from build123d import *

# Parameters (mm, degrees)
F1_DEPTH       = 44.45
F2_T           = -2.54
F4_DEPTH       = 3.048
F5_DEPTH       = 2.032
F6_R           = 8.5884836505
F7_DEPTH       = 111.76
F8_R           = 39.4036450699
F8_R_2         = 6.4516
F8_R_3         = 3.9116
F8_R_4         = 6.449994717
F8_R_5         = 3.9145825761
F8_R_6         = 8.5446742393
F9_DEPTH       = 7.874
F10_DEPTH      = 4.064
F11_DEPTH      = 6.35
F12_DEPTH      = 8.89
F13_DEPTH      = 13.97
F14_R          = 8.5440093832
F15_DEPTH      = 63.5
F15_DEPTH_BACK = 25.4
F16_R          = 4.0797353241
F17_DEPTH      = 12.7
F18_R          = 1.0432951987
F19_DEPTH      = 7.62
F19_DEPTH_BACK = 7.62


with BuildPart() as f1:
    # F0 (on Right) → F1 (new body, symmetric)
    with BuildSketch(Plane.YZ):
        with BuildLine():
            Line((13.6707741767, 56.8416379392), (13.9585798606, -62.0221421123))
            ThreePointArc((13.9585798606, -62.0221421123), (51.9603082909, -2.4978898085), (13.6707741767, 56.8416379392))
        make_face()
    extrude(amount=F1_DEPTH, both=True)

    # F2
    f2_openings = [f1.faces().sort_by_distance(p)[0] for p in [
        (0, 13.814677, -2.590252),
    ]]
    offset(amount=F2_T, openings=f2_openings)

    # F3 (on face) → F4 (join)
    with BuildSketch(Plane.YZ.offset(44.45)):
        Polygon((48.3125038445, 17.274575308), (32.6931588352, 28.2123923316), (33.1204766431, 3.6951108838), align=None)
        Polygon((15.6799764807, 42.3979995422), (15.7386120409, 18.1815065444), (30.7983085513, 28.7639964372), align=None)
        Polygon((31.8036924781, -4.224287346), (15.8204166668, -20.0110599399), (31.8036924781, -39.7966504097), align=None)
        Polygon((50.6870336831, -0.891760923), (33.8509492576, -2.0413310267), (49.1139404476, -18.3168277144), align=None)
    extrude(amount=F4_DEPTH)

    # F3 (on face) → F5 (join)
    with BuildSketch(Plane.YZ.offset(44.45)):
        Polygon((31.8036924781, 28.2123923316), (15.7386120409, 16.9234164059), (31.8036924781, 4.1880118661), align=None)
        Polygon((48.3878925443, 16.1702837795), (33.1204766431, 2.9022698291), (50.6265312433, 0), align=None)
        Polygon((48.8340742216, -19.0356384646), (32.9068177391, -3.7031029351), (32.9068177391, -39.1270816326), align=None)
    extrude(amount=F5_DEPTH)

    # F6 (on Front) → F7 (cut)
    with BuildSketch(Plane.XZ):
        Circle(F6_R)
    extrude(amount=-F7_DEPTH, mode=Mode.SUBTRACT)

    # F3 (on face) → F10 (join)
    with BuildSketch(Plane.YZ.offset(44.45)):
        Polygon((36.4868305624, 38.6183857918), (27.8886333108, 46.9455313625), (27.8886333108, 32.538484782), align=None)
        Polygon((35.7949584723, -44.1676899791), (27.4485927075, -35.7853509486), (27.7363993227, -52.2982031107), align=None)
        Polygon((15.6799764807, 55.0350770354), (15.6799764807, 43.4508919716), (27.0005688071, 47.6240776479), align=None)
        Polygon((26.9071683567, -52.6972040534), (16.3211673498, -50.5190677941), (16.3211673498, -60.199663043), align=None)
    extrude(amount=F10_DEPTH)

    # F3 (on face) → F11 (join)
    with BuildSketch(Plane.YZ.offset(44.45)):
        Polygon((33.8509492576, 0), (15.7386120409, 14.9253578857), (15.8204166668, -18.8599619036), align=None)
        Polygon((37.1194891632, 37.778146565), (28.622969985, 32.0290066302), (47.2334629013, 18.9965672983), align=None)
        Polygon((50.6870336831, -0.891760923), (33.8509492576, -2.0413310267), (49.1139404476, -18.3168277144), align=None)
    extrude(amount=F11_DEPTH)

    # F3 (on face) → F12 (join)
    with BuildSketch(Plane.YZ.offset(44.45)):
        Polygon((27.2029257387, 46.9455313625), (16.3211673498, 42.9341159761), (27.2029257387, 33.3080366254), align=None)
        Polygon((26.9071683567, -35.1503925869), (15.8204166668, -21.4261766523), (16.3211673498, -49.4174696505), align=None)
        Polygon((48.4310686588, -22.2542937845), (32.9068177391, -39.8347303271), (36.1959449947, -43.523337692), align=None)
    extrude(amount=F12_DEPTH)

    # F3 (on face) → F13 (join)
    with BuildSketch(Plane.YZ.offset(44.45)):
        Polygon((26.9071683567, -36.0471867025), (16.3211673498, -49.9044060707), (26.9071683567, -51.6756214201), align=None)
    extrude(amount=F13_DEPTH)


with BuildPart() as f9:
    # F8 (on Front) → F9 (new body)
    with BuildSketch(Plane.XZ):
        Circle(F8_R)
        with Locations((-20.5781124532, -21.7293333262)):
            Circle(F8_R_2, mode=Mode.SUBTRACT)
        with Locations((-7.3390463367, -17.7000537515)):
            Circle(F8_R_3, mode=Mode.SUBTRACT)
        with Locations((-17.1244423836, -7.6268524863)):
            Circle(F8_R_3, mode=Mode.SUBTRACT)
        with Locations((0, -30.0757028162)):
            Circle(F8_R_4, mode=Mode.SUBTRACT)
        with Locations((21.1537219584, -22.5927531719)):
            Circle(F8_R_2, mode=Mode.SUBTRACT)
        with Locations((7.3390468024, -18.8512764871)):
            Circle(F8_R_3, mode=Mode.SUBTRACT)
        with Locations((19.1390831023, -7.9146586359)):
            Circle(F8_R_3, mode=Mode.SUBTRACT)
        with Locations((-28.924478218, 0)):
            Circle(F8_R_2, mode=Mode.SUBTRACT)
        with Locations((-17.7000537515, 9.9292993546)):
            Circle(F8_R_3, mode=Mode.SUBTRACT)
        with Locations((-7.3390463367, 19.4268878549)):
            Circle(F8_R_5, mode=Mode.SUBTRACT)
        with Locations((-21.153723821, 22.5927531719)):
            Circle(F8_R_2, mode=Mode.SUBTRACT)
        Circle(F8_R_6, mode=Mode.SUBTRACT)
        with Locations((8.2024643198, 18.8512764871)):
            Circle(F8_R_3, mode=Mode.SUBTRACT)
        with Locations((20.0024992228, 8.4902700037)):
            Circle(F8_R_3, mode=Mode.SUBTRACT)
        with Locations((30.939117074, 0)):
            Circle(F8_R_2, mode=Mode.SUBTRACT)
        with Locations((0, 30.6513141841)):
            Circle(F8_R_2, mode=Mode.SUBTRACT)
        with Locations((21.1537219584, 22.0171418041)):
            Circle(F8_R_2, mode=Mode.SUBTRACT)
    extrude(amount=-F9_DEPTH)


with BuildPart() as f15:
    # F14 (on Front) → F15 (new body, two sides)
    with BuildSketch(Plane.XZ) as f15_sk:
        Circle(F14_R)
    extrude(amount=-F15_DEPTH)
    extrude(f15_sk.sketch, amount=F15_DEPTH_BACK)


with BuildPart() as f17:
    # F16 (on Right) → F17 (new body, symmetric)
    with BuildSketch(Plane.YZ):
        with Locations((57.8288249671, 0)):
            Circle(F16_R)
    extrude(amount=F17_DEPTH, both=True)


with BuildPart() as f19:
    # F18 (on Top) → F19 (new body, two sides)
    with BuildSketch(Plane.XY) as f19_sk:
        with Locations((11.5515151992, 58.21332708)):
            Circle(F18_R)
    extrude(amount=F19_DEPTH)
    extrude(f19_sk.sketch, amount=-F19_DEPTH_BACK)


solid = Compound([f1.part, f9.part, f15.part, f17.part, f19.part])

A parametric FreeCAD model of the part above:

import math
import FreeCAD as App
import Part
import Sketcher
Q = App.Units.Quantity


def faces_at(feature, points):
    """Names of the faces that lie closest to the given points."""
    faces = feature.Shape.Faces
    near = lambda p: min(range(len(faces)), key=lambda i: faces[i].distToShape(Part.Vertex(*p))[0])
    return sorted({f"Face{near(p) + 1}" for p in points})


def add_polygon(sketch, points):
    """Adds a closed chain of lines whose ends are joined by coincident constraints."""
    first, n = sketch.GeometryCount, len(points)
    for a, b in zip(points, points[1:] + points[:1]):
        sketch.addGeometry(Part.LineSegment(App.Vector(*a, 0), App.Vector(*b, 0)), False)
    for i in range(n):
        sketch.addConstraint(Sketcher.Constraint("Coincident", first + i, 2, first + (i + 1) % n, 1))

doc = App.newDocument("Part")
params = doc.addObject("Spreadsheet::Sheet", "Params")
for row, (alias, value) in enumerate([
    ("pad1_length", "3.5 in"),
    ("thickness_wall", "0.1 in"),
    ("pad2_length", "0.12 in"),
    ("pad3_length", "0.08 in"),
    ("pocket1_length", "4.4 in"),
    ("pad4_length", "0.16 in"),
    ("pad5_length", "0.25 in"),
    ("pad6_length", "0.35 in"),
    ("pad7_length", "0.55 in"),
    ("sketch9_diameter", "0.508 in"),
    ("sketch9_diameter2", "0.308 in"),
    ("pad8_length", "0.31 in"),
    ("pad9_length", "2.5 in"),
    ("pad9_length2", "1 in"),
    ("pad10_length", "1 in"),
    ("pad11_length", "0.3 in"),
    ("pad11_length2", "0.3 in"),
], start=1):
    params.set(f"A{row}", alias)
    params.set(f"B{row}", "=" + value)
    params.setAlias(f"B{row}", alias)

body = doc.addObject("PartDesign::Body", "Body")

sketch1 = body.newObject("Sketcher::SketchObject", "Sketch")
sketch1.AttachmentSupport = (doc.getObject("YZ_Plane"), [""])
sketch1.MapMode = "FlatFace"
sketch1.addGeometry([
    Part.LineSegment(App.Vector(13.670774, 56.841638, 0), App.Vector(13.95858, -62.022142, 0)),
    Part.ArcOfCircle(Part.Circle(App.Vector(-13.410726, -2.656173, 0), App.Vector(0, 0, 1), 65.371226), math.radians(-65.24903), math.radians(65.52649)),
], False)
sketch1.addConstraint([
    Sketcher.Constraint("Coincident", 0, 1, 1, 2),
    Sketcher.Constraint("Coincident", 1, 1, 0, 2),
    Sketcher.Constraint("Radius", 1, Q("65.371226 mm")),
    Sketcher.Constraint("DistanceX", 1, 3, 0, 1, Q("27.0815 mm")),
    Sketcher.Constraint("Distance", 0, Q("118.864128 mm")),
    Sketcher.Constraint("DistanceX", -1, 1, 1, 1, Q("13.95858 mm")),
    Sketcher.Constraint("DistanceY", 1, 3, -1, 1, Q("2.656173 mm")),
])
pad1 = body.newObject("PartDesign::Pad", "Pad")
pad1.Profile = sketch1
pad1.setExpression("Length", "Params.pad1_length")
pad1.Midplane = True
doc.recompute()

thickness = body.newObject("PartDesign::Thickness", "Thickness")
thickness.Base = (pad1, faces_at(pad1, [(0, 13.815, -2.59)]))
thickness.setExpression("Value", "Params.thickness_wall")
thickness.Reversed = True
thickness.Join = "Arc"

sketch2 = body.newObject("Sketcher::SketchObject", "Sketch001")
sketch2.AttachmentSupport = (doc.getObject("YZ_Plane"), [""])
sketch2.MapMode = "FlatFace"
sketch2.AttachmentOffset = App.Placement(App.Vector(0, 0, 1.75 * 25.4), App.Rotation())
add_polygon(sketch2, [(48.312504, 17.274575), (32.693159, 28.212392), (33.120477, 3.695111)])
add_polygon(sketch2, [(15.679976, 42.398), (15.738612, 18.181507), (30.798309, 28.763996)])
add_polygon(sketch2, [(31.803692, -4.224287), (15.820417, -20.01106), (31.803692, -39.79665)])
add_polygon(sketch2, [(50.687034, -0.891761), (33.850949, -2.041331), (49.11394, -18.316828)])
sketch2.addConstraint([
    Sketcher.Constraint("Vertical", 8),
    Sketcher.Constraint("DistanceY", -1, 1, 5, 2, Q("42.398 mm")),
    Sketcher.Constraint("DistanceX", 5, 2, 1, 2, Q("17.4405 mm")),
    Sketcher.Constraint("DistanceY", 8, 2, 1, 2, Q("7.919398 mm")),
    Sketcher.Constraint("Distance", 7, Q("25.434911 mm")),
    Sketcher.Constraint("Distance", 10, Q("22.312568 mm")),
    Sketcher.Constraint("Distance", 11, Q("17.49593 mm")),
    Sketcher.Constraint("DistanceY", 8, 1, 8, 2, Q("35.572363 mm")),
    Sketcher.Constraint("DistanceX", -1, 1, 0, 2, Q("32.693159 mm")),
    Sketcher.Constraint("DistanceY", -1, 1, 1, 2, Q("3.695111 mm")),
    Sketcher.Constraint("DistanceX", -1, 1, 4, 2, Q("30.798309 mm")),
    Sketcher.Constraint("DistanceY", 6, 2, -1, 1, Q("20.01106 mm")),
    Sketcher.Constraint("DistanceX", -1, 1, 9, 2, Q("33.850949 mm")),
    Sketcher.Constraint("DistanceY", 9, 2, -1, 1, Q("2.041331 mm")),
    Sketcher.Constraint("DistanceX", -1, 1, 10, 2, Q("49.11394 mm")),
    Sketcher.Constraint("DistanceY", 11, 2, -1, 1, Q("0.891761 mm")),
    Sketcher.Constraint("DistanceY", 1, 2, 0, 2, Q("24.517281 mm")),
    Sketcher.Constraint("DistanceX", 3, 2, 2, 2, Q("32.573892 mm")),
    Sketcher.Constraint("DistanceY", 2, 2, 3, 2, Q("0.906931 mm")),
    Sketcher.Constraint("DistanceY", 3, 2, 4, 2, Q("10.58249 mm")),
    Sketcher.Constraint("DistanceX", 4, 2, 1, 2, Q("2.322168 mm")),
    Sketcher.Constraint("DistanceX", 6, 2, 1, 2, Q("17.30006 mm")),
    Sketcher.Constraint("DistanceX", 7, 2, 2, 2, Q("16.508811 mm")),
    Sketcher.Constraint("Distance", 0, Q("19.068293 mm")),
])
pad2 = body.newObject("PartDesign::Pad", "Pad001")
pad2.Profile = sketch2
pad2.setExpression("Length", "Params.pad2_length")

sketch3 = body.newObject("Sketcher::SketchObject", "Sketch002")
sketch3.AttachmentSupport = (doc.getObject("YZ_Plane"), [""])
sketch3.MapMode = "FlatFace"
sketch3.AttachmentOffset = App.Placement(App.Vector(0, 0, 1.75 * 25.4), App.Rotation())
add_polygon(sketch3, [(31.803692, 28.212392), (15.738612, 16.923416), (31.803692, 4.188012)])
add_polygon(sketch3, [(48.387893, 16.170284), (33.120477, 2.90227), (50.626531, 0)])
add_polygon(sketch3, [(48.834074, -19.035638), (32.906818, -3.703103), (32.906818, -39.127082)])
sketch3.addConstraint([
    Sketcher.Constraint("Vertical", 2),
    Sketcher.Constraint("Vertical", 7),
    Sketcher.Constraint("PointOnObject", 4, 2, -1),
    Sketcher.Constraint("Perpendicular", 1, 8),
    Sketcher.Constraint("DistanceY", 2, 1, 2, 2, Q("24.02438 mm")),
    Sketcher.Constraint("DistanceY", 7, 2, 7, 1, Q("35.423979 mm")),
    Sketcher.Constraint("DistanceX", 1, 2, 5, 2, Q("16.5842 mm")),
    Sketcher.Constraint("Distance", 0, Q("19.634862 mm")),
    Sketcher.Constraint("Distance", 5, Q("16.324509 mm")),
    Sketcher.Constraint("Distance", 6, Q("22.108011 mm")),
    Sketcher.Constraint("DistanceY", -1, 1, 1, 2, Q("4.188012 mm")),
    Sketcher.Constraint("DistanceY", -1, 1, 3, 2, Q("2.90227 mm")),
    Sketcher.Constraint("DistanceX", -1, 1, 4, 2, Q("50.626531 mm")),
    Sketcher.Constraint("DistanceY", 7, 2, -1, 1, Q("39.127082 mm")),
    Sketcher.Constraint("DistanceY", 8, 2, -1, 1, Q("19.035638 mm")),
    Sketcher.Constraint("DistanceX", 1, 2, 4, 2, Q("18.822839 mm")),
    Sketcher.Constraint("DistanceX", 6, 2, 3, 2, Q("0.213659 mm")),
    Sketcher.Constraint("DistanceX", 1, 2, 8, 2, Q("17.030382 mm")),
])
pad3 = body.newObject("PartDesign::Pad", "Pad002")
pad3.Profile = sketch3
pad3.setExpression("Length", "Params.pad3_length")

sketch4 = body.newObject("Sketcher::SketchObject", "Sketch003")
sketch4.AttachmentSupport = (doc.getObject("XZ_Plane"), [""])
sketch4.MapMode = "FlatFace"
sketch4.addGeometry(Part.Circle(App.Vector(0, 0, 0), App.Vector(0, 0, 1), 8.588484), False)
sketch4.addConstraint([
    Sketcher.Constraint("Coincident", 0, 3, -1, 1),
    Sketcher.Constraint("Diameter", 0, Q("17.176967 mm")),
])
pocket1 = body.newObject("PartDesign::Pocket", "Pocket")
pocket1.Profile = sketch4
pocket1.setExpression("Length", "Params.pocket1_length")

sketch5 = body.newObject("Sketcher::SketchObject", "Sketch004")
sketch5.AttachmentSupport = (doc.getObject("YZ_Plane"), [""])
sketch5.MapMode = "FlatFace"
sketch5.AttachmentOffset = App.Placement(App.Vector(0, 0, 1.75 * 25.4), App.Rotation())
add_polygon(sketch5, [(36.486831, 38.618386), (27.888633, 46.945531), (27.888633, 32.538485)])
add_polygon(sketch5, [(35.794958, -44.16769), (27.448593, -35.785351), (27.736399, -52.298203)])
add_polygon(sketch5, [(15.679976, 55.035077), (15.679976, 43.450892), (27.000569, 47.624078)])
add_polygon(sketch5, [(26.907168, -52.697204), (16.321167, -50.519068), (16.321167, -60.199663)])
sketch5.addConstraint([
    Sketcher.Constraint("Vertical", 1),
    Sketcher.Constraint("Vertical", 6),
    Sketcher.Constraint("Vertical", 10),
    Sketcher.Constraint("DistanceX", -1, 1, 4, 2, Q("27.736399 mm")),
    Sketcher.Constraint("DistanceY", 1, 2, 2, 2, Q("6.079901 mm")),
    Sketcher.Constraint("DistanceY", 7, 2, 8, 2, Q("7.410999 mm")),
    Sketcher.Constraint("DistanceY", 11, 2, 4, 2, Q("0.399001 mm")),
    Sketcher.Constraint("DistanceX", 9, 2, 11, 2, Q("10.586001 mm")),
    Sketcher.Constraint("Distance", 0, Q("11.969559 mm")),
    Sketcher.Constraint("Distance", 2, Q("10.530631 mm")),
    Sketcher.Constraint("Distance", 4, Q("16.51536 mm")),
    Sketcher.Constraint("Distance", 8, Q("13.530659 mm")),
    Sketcher.Constraint("Distance", 9, Q("10.807761 mm")),
    Sketcher.Constraint("DistanceY", 6, 2, 6, 1, Q("11.584185 mm")),
    Sketcher.Constraint("DistanceY", 10, 2, 10, 1, Q("9.680595 mm")),
    Sketcher.Constraint("DistanceY", -1, 1, 0, 2, Q("46.945531 mm")),
    Sketcher.Constraint("DistanceX", -1, 1, 2, 2, Q("36.486831 mm")),
    Sketcher.Constraint("DistanceY", 3, 2, -1, 1, Q("35.785351 mm")),
    Sketcher.Constraint("DistanceX", -1, 1, 5, 2, Q("35.794958 mm")),
    Sketcher.Constraint("DistanceY", 5, 2, -1, 1, Q("44.16769 mm")),
    Sketcher.Constraint("DistanceY", -1, 1, 6, 2, Q("43.450892 mm")),
    Sketcher.Constraint("DistanceX", -1, 1, 7, 2, Q("27.000569 mm")),
    Sketcher.Constraint("DistanceX", -1, 1, 11, 2, Q("26.907168 mm")),
    Sketcher.Constraint("DistanceX", 3, 2, 1, 2, Q("0.440041 mm")),
])
pad4 = body.newObject("PartDesign::Pad", "Pad003")
pad4.Profile = sketch5
pad4.setExpression("Length", "Params.pad4_length")

sketch6 = body.newObject("Sketcher::SketchObject", "Sketch005")
sketch6.AttachmentSupport = (doc.getObject("YZ_Plane"), [""])
sketch6.MapMode = "FlatFace"
sketch6.AttachmentOffset = App.Placement(App.Vector(0, 0, 1.75 * 25.4), App.Rotation())
add_polygon(sketch6, [(33.850949, 0), (15.738612, 14.925358), (15.820417, -18.859962)])
add_polygon(sketch6, [(37.119489, 37.778147), (28.62297, 32.029007), (47.233463, 18.996567)])
add_polygon(sketch6, [(50.687034, -0.891761), (33.850949, -2.041331), (49.11394, -18.316828)])
sketch6.addConstraint([
    Sketcher.Constraint("PointOnObject", 2, 2, -1),
    Sketcher.Constraint("Vertical", 2, 2, 6, 2),
    Sketcher.Constraint("Angle", 0, Q("140.509985 deg")),
    Sketcher.Constraint("DistanceY", 6, 2, 4, 2, Q("21.037898 mm")),
    Sketcher.Constraint("Distance", 0, Q("23.46962 mm")),
    Sketcher.Constraint("Distance", 1, Q("33.785419 mm")),
    Sketcher.Constraint("Distance", 2, Q("26.092111 mm")),
    Sketcher.Constraint("Distance", 5, Q("21.331671 mm")),
    Sketcher.Constraint("Distance", 7, Q("22.312568 mm")),
    Sketcher.Constraint("Distance", 8, Q("17.49593 mm")),
    Sketcher.Constraint("DistanceX", -1, 1, 2, 2, Q("33.850949 mm")),
    Sketcher.Constraint("DistanceX", -1, 1, 3, 2, Q("28.62297 mm")),
    Sketcher.Constraint("DistanceX", -1, 1, 5, 2, Q("37.119489 mm")),
    Sketcher.Constraint("DistanceY", 6, 2, -1, 1, Q("2.041331 mm")),
    Sketcher.Constraint("DistanceX", -1, 1, 7, 2, Q("49.11394 mm")),
    Sketcher.Constraint("DistanceY", 8, 2, -1, 1, Q("0.891761 mm")),
    Sketcher.Constraint("DistanceY", 0, 2, 3, 2, Q("17.103649 mm")),
    Sketcher.Constraint("DistanceX", 0, 2, 4, 2, Q("31.494851 mm")),
])
pad5 = body.newObject("PartDesign::Pad", "Pad004")
pad5.Profile = sketch6
pad5.setExpression("Length", "Params.pad5_length")

sketch7 = body.newObject("Sketcher::SketchObject", "Sketch006")
sketch7.AttachmentSupport = (doc.getObject("YZ_Plane"), [""])
sketch7.MapMode = "FlatFace"
sketch7.AttachmentOffset = App.Placement(App.Vector(0, 0, 1.75 * 25.4), App.Rotation())
add_polygon(sketch7, [(27.202926, 46.945531), (16.321167, 42.934116), (27.202926, 33.308037)])
add_polygon(sketch7, [(26.907168, -35.150393), (15.820417, -21.426177), (16.321167, -49.41747)])
add_polygon(sketch7, [(48.431069, -22.254294), (32.906818, -39.83473), (36.195945, -43.523338)])
sketch7.addConstraint([
    Sketcher.Constraint("Vertical", 2),
    Sketcher.Constraint("Vertical", 0, 2, 4, 2),
    Sketcher.Constraint("DistanceX", 5, 2, 7, 2, Q("0.3656999 in")),
    Sketcher.Constraint("DistanceY", 4, 2, 2, 2, Q("96.363001 mm")),
    Sketcher.Constraint("DistanceX", 4, 2, 5, 2, Q("10.586001 mm")),
    Sketcher.Constraint("DistanceX", 3, 2, 6, 2, Q("17.086401 mm")),
    Sketcher.Constraint("DistanceX", 5, 2, 8, 2, Q("21.5239 mm")),
    Sketcher.Constraint("DistanceY", 5, 2, 8, 2, Q("12.896099 mm")),
    Sketcher.Constraint("Distance", 0, Q("11.597591 mm")),
    Sketcher.Constraint("Distance", 1, Q("14.528388 mm")),
    Sketcher.Constraint("Distance", 3, Q("17.64285 mm")),
    Sketcher.Constraint("Distance", 4, Q("27.995772 mm")),
    Sketcher.Constraint("Distance", 6, Q("23.453659 mm")),
    Sketcher.Constraint("DistanceY", 2, 1, 2, 2, Q("13.637495 mm")),
    Sketcher.Constraint("DistanceY", -1, 1, 2, 2, Q("46.945531 mm")),
    Sketcher.Constraint("DistanceX", -1, 1, 5, 2, Q("26.907168 mm")),
    Sketcher.Constraint("DistanceY", 6, 2, -1, 1, Q("39.83473 mm")),
    Sketcher.Constraint("DistanceY", 4, 2, 7, 2, Q("5.894132 mm")),
])
pad6 = body.newObject("PartDesign::Pad", "Pad005")
pad6.Profile = sketch7
pad6.setExpression("Length", "Params.pad6_length")

sketch8 = body.newObject("Sketcher::SketchObject", "Sketch007")
sketch8.AttachmentSupport = (doc.getObject("YZ_Plane"), [""])
sketch8.MapMode = "FlatFace"
sketch8.AttachmentOffset = App.Placement(App.Vector(0, 0, 1.75 * 25.4), App.Rotation())
add_polygon(sketch8, [(26.907168, -36.047187), (16.321167, -49.904406), (26.907168, -51.675621)])
sketch8.addConstraint([
    Sketcher.Constraint("Vertical", 2),
    Sketcher.Constraint("DistanceX", 0, 2, 1, 2, Q("10.586001 mm")),
    Sketcher.Constraint("Distance", 0, Q("17.43806 mm")),
    Sketcher.Constraint("DistanceY", 2, 1, 2, 2, Q("15.628435 mm")),
    Sketcher.Constraint("DistanceX", -1, 1, 1, 2, Q("26.907168 mm")),
    Sketcher.Constraint("DistanceY", 1, 2, -1, 1, Q("51.675621 mm")),
])
pad7 = body.newObject("PartDesign::Pad", "Pad006")
pad7.Profile = sketch8
pad7.setExpression("Length", "Params.pad7_length")
body2 = doc.addObject("PartDesign::Body", "Body001")

sketch9 = body2.newObject("Sketcher::SketchObject", "Sketch008")
sketch9.AttachmentSupport = (doc.getObject("XZ_Plane001"), [""])
sketch9.MapMode = "FlatFace"
sketch9.addGeometry([
    Part.Circle(App.Vector(0, 0, 0), App.Vector(0, 0, 1), 39.403645),
    Part.Circle(App.Vector(-20.578112, -21.729333, 0), App.Vector(0, 0, 1), 6.4516),
    Part.Circle(App.Vector(0, -30.075703, 0), App.Vector(0, 0, 1), 6.449995),
    Part.Circle(App.Vector(-28.924478, 0, 0), App.Vector(0, 0, 1), 6.4516),
    Part.Circle(App.Vector(-7.339046, -17.700054, 0), App.Vector(0, 0, 1), 3.9116),
    Part.Circle(App.Vector(-17.124442, -7.626852, 0), App.Vector(0, 0, 1), 3.9116),
    Part.Circle(App.Vector(0, 0, 0), App.Vector(0, 0, 1), 8.544674),
    Part.Circle(App.Vector(7.339047, -18.851276, 0), App.Vector(0, 0, 1), 3.9116),
    Part.Circle(App.Vector(21.153722, -22.592753, 0), App.Vector(0, 0, 1), 6.4516),
    Part.Circle(App.Vector(19.139083, -7.914659, 0), App.Vector(0, 0, 1), 3.9116),
    Part.Circle(App.Vector(30.939117, 0, 0), App.Vector(0, 0, 1), 6.4516),
    Part.Circle(App.Vector(-17.700054, 9.929299, 0), App.Vector(0, 0, 1), 3.9116),
    Part.Circle(App.Vector(-21.153724, 22.592753, 0), App.Vector(0, 0, 1), 6.4516),
    Part.Circle(App.Vector(-7.339046, 19.426888, 0), App.Vector(0, 0, 1), 3.914583),
    Part.Circle(App.Vector(0, 30.651314, 0), App.Vector(0, 0, 1), 6.4516),
    Part.Circle(App.Vector(20.002499, 8.49027, 0), App.Vector(0, 0, 1), 3.9116),
    Part.Circle(App.Vector(8.202464, 18.851276, 0), App.Vector(0, 0, 1), 3.9116),
    Part.Circle(App.Vector(21.153722, 22.017142, 0), App.Vector(0, 0, 1), 6.4516),
], False)
sketch9.addConstraint([
    Sketcher.Constraint("Coincident", 0, 3, -1, 1),
    Sketcher.Constraint("Coincident", 6, 3, -1, 1),
    Sketcher.Constraint("Equal", 1, 3),
    Sketcher.Constraint("Equal", 4, 5),
    Sketcher.Constraint("Equal", 5, 7),
    Sketcher.Constraint("Equal", 3, 8),
    Sketcher.Constraint("Equal", 7, 9),
    Sketcher.Constraint("Equal", 8, 10),
    Sketcher.Constraint("Equal", 9, 11),
    Sketcher.Constraint("Equal", 10, 12),
    Sketcher.Constraint("Equal", 12, 14),
    Sketcher.Constraint("Equal", 11, 15),
    Sketcher.Constraint("Equal", 15, 16),
    Sketcher.Constraint("Equal", 14, 17),
    Sketcher.Constraint("Symmetric", 8, 3, 12, 3, -1, 1),
    Sketcher.Constraint("PointOnObject", 2, 3, -2),
    Sketcher.Constraint("PointOnObject", 3, 3, -1),
    Sketcher.Constraint("PointOnObject", 10, 3, -1),
    Sketcher.Constraint("PointOnObject", 14, 3, -2),
    Sketcher.Constraint("Vertical", 4, 3, 13, 3),
    Sketcher.Constraint("Vertical", 8, 3, 17, 3),
    Sketcher.Constraint("Diameter", 1, Q("0.508 in")),
    Sketcher.Constraint("Diameter", 4, Q("0.308 in")),
    Sketcher.Constraint("Diameter", 0, Q("78.80729 mm")),
    Sketcher.Constraint("Diameter", 2, Q("12.899989 mm")),
    Sketcher.Constraint("Diameter", 6, Q("17.089348 mm")),
    Sketcher.Constraint("Diameter", 13, Q("7.829165 mm")),
    Sketcher.Constraint("DistanceX", -1, 1, 15, 3, Q("0.7875 in")),
    Sketcher.Constraint("DistanceY", -1, 1, 11, 3, Q("9.929299 mm")),
    Sketcher.Constraint("DistanceY", 4, 3, 5, 3, Q("10.073201 mm")),
    Sketcher.Constraint("DistanceY", 8, 3, 4, 3, Q("4.892699 mm")),
    Sketcher.Constraint("DistanceX", 3, 3, -1, 1, Q("28.924478 mm")),
    Sketcher.Constraint("DistanceX", -1, 1, 8, 3, Q("21.153722 mm")),
    Sketcher.Constraint("DistanceY", 9, 3, -1, 1, Q("7.914659 mm")),
    Sketcher.Constraint("DistanceY", -1, 1, 15, 3, Q("8.49027 mm")),
    Sketcher.Constraint("DistanceY", -1, 1, 17, 3, Q("22.017142 mm")),
    Sketcher.Constraint("DistanceY", 2, 3, 1, 3, Q("8.346369 mm")),
    Sketcher.Constraint("DistanceY", 1, 3, 4, 3, Q("4.02928 mm")),
    Sketcher.Constraint("DistanceX", 3, 3, 4, 3, Q("21.585432 mm")),
    Sketcher.Constraint("DistanceX", 1, 3, 5, 3, Q("3.45367 mm")),
    Sketcher.Constraint("DistanceX", 5, 3, 7, 3, Q("24.463489 mm")),
    Sketcher.Constraint("DistanceX", 9, 3, 8, 3, Q("2.014639 mm")),
    Sketcher.Constraint("DistanceX", 7, 3, 10, 3, Q("23.60007 mm")),
    Sketcher.Constraint("DistanceX", 11, 3, 5, 3, Q("0.575611 mm")),
    Sketcher.Constraint("DistanceY", 5, 3, 11, 3, Q("17.556152 mm")),
    Sketcher.Constraint("DistanceX", 12, 3, 11, 3, Q("3.45367 mm")),
    Sketcher.Constraint("DistanceY", 11, 3, 13, 3, Q("9.497589 mm")),
    Sketcher.Constraint("DistanceY", 12, 3, 14, 3, Q("8.058561 mm")),
    Sketcher.Constraint("DistanceX", 13, 3, 16, 3, Q("15.541511 mm")),
    Sketcher.Constraint("DistanceY", 16, 3, 13, 3, Q("0.575611 mm")),
    Sketcher.Constraint("DistanceY", 7, 3, -1, 1, Q("18.851276 mm")),
])
sketch9.setExpression("Constraints[21]", "Params.sketch9_diameter")
sketch9.setExpression("Constraints[22]", "Params.sketch9_diameter2")
pad8 = body2.newObject("PartDesign::Pad", "Pad007")
pad8.Profile = sketch9
pad8.setExpression("Length", "Params.pad8_length")
pad8.Reversed = True
body3 = doc.addObject("PartDesign::Body", "Body002")

sketch10 = body3.newObject("Sketcher::SketchObject", "Sketch009")
sketch10.AttachmentSupport = (doc.getObject("XZ_Plane002"), [""])
sketch10.MapMode = "FlatFace"
sketch10.addGeometry(Part.Circle(App.Vector(0, 0, 0), App.Vector(0, 0, 1), 8.544009), False)
sketch10.addConstraint([
    Sketcher.Constraint("Coincident", 0, 3, -1, 1),
    Sketcher.Constraint("Diameter", 0, Q("17.088019 mm")),
])
pad9 = body3.newObject("PartDesign::Pad", "Pad008")
pad9.Profile = sketch10
pad9.Type = "TwoLengths"
pad9.setExpression("Length", "Params.pad9_length")
pad9.setExpression("Length2", "Params.pad9_length2")
pad9.Reversed = True
body4 = doc.addObject("PartDesign::Body", "Body003")

sketch11 = body4.newObject("Sketcher::SketchObject", "Sketch010")
sketch11.AttachmentSupport = (doc.getObject("YZ_Plane003"), [""])
sketch11.MapMode = "FlatFace"
sketch11.addGeometry(Part.Circle(App.Vector(57.828825, 0, 0), App.Vector(0, 0, 1), 4.079735), False)
sketch11.addConstraint([
    Sketcher.Constraint("PointOnObject", 0, 3, -1),
    Sketcher.Constraint("Diameter", 0, Q("8.159471 mm")),
    Sketcher.Constraint("DistanceX", -1, 1, 0, 3, Q("57.828825 mm")),
])
pad10 = body4.newObject("PartDesign::Pad", "Pad009")
pad10.Profile = sketch11
pad10.setExpression("Length", "Params.pad10_length")
pad10.Midplane = True
body5 = doc.addObject("PartDesign::Body", "Body004")

sketch12 = body5.newObject("Sketcher::SketchObject", "Sketch011")
sketch12.AttachmentSupport = (doc.getObject("XY_Plane004"), [""])
sketch12.MapMode = "FlatFace"
sketch12.addGeometry(Part.Circle(App.Vector(11.551515, 58.213327, 0), App.Vector(0, 0, 1), 1.043295), False)
sketch12.addConstraint([
    Sketcher.Constraint("Diameter", 0, Q("2.08659 mm")),
    Sketcher.Constraint("DistanceX", -1, 1, 0, 3, Q("11.551515 mm")),
    Sketcher.Constraint("DistanceY", -1, 1, 0, 3, Q("58.213327 mm")),
])
pad11 = body5.newObject("PartDesign::Pad", "Pad010")
pad11.Profile = sketch12
pad11.Type = "TwoLengths"
pad11.setExpression("Length", "Params.pad11_length")
pad11.setExpression("Length2", "Params.pad11_length2")

doc.recompute()
